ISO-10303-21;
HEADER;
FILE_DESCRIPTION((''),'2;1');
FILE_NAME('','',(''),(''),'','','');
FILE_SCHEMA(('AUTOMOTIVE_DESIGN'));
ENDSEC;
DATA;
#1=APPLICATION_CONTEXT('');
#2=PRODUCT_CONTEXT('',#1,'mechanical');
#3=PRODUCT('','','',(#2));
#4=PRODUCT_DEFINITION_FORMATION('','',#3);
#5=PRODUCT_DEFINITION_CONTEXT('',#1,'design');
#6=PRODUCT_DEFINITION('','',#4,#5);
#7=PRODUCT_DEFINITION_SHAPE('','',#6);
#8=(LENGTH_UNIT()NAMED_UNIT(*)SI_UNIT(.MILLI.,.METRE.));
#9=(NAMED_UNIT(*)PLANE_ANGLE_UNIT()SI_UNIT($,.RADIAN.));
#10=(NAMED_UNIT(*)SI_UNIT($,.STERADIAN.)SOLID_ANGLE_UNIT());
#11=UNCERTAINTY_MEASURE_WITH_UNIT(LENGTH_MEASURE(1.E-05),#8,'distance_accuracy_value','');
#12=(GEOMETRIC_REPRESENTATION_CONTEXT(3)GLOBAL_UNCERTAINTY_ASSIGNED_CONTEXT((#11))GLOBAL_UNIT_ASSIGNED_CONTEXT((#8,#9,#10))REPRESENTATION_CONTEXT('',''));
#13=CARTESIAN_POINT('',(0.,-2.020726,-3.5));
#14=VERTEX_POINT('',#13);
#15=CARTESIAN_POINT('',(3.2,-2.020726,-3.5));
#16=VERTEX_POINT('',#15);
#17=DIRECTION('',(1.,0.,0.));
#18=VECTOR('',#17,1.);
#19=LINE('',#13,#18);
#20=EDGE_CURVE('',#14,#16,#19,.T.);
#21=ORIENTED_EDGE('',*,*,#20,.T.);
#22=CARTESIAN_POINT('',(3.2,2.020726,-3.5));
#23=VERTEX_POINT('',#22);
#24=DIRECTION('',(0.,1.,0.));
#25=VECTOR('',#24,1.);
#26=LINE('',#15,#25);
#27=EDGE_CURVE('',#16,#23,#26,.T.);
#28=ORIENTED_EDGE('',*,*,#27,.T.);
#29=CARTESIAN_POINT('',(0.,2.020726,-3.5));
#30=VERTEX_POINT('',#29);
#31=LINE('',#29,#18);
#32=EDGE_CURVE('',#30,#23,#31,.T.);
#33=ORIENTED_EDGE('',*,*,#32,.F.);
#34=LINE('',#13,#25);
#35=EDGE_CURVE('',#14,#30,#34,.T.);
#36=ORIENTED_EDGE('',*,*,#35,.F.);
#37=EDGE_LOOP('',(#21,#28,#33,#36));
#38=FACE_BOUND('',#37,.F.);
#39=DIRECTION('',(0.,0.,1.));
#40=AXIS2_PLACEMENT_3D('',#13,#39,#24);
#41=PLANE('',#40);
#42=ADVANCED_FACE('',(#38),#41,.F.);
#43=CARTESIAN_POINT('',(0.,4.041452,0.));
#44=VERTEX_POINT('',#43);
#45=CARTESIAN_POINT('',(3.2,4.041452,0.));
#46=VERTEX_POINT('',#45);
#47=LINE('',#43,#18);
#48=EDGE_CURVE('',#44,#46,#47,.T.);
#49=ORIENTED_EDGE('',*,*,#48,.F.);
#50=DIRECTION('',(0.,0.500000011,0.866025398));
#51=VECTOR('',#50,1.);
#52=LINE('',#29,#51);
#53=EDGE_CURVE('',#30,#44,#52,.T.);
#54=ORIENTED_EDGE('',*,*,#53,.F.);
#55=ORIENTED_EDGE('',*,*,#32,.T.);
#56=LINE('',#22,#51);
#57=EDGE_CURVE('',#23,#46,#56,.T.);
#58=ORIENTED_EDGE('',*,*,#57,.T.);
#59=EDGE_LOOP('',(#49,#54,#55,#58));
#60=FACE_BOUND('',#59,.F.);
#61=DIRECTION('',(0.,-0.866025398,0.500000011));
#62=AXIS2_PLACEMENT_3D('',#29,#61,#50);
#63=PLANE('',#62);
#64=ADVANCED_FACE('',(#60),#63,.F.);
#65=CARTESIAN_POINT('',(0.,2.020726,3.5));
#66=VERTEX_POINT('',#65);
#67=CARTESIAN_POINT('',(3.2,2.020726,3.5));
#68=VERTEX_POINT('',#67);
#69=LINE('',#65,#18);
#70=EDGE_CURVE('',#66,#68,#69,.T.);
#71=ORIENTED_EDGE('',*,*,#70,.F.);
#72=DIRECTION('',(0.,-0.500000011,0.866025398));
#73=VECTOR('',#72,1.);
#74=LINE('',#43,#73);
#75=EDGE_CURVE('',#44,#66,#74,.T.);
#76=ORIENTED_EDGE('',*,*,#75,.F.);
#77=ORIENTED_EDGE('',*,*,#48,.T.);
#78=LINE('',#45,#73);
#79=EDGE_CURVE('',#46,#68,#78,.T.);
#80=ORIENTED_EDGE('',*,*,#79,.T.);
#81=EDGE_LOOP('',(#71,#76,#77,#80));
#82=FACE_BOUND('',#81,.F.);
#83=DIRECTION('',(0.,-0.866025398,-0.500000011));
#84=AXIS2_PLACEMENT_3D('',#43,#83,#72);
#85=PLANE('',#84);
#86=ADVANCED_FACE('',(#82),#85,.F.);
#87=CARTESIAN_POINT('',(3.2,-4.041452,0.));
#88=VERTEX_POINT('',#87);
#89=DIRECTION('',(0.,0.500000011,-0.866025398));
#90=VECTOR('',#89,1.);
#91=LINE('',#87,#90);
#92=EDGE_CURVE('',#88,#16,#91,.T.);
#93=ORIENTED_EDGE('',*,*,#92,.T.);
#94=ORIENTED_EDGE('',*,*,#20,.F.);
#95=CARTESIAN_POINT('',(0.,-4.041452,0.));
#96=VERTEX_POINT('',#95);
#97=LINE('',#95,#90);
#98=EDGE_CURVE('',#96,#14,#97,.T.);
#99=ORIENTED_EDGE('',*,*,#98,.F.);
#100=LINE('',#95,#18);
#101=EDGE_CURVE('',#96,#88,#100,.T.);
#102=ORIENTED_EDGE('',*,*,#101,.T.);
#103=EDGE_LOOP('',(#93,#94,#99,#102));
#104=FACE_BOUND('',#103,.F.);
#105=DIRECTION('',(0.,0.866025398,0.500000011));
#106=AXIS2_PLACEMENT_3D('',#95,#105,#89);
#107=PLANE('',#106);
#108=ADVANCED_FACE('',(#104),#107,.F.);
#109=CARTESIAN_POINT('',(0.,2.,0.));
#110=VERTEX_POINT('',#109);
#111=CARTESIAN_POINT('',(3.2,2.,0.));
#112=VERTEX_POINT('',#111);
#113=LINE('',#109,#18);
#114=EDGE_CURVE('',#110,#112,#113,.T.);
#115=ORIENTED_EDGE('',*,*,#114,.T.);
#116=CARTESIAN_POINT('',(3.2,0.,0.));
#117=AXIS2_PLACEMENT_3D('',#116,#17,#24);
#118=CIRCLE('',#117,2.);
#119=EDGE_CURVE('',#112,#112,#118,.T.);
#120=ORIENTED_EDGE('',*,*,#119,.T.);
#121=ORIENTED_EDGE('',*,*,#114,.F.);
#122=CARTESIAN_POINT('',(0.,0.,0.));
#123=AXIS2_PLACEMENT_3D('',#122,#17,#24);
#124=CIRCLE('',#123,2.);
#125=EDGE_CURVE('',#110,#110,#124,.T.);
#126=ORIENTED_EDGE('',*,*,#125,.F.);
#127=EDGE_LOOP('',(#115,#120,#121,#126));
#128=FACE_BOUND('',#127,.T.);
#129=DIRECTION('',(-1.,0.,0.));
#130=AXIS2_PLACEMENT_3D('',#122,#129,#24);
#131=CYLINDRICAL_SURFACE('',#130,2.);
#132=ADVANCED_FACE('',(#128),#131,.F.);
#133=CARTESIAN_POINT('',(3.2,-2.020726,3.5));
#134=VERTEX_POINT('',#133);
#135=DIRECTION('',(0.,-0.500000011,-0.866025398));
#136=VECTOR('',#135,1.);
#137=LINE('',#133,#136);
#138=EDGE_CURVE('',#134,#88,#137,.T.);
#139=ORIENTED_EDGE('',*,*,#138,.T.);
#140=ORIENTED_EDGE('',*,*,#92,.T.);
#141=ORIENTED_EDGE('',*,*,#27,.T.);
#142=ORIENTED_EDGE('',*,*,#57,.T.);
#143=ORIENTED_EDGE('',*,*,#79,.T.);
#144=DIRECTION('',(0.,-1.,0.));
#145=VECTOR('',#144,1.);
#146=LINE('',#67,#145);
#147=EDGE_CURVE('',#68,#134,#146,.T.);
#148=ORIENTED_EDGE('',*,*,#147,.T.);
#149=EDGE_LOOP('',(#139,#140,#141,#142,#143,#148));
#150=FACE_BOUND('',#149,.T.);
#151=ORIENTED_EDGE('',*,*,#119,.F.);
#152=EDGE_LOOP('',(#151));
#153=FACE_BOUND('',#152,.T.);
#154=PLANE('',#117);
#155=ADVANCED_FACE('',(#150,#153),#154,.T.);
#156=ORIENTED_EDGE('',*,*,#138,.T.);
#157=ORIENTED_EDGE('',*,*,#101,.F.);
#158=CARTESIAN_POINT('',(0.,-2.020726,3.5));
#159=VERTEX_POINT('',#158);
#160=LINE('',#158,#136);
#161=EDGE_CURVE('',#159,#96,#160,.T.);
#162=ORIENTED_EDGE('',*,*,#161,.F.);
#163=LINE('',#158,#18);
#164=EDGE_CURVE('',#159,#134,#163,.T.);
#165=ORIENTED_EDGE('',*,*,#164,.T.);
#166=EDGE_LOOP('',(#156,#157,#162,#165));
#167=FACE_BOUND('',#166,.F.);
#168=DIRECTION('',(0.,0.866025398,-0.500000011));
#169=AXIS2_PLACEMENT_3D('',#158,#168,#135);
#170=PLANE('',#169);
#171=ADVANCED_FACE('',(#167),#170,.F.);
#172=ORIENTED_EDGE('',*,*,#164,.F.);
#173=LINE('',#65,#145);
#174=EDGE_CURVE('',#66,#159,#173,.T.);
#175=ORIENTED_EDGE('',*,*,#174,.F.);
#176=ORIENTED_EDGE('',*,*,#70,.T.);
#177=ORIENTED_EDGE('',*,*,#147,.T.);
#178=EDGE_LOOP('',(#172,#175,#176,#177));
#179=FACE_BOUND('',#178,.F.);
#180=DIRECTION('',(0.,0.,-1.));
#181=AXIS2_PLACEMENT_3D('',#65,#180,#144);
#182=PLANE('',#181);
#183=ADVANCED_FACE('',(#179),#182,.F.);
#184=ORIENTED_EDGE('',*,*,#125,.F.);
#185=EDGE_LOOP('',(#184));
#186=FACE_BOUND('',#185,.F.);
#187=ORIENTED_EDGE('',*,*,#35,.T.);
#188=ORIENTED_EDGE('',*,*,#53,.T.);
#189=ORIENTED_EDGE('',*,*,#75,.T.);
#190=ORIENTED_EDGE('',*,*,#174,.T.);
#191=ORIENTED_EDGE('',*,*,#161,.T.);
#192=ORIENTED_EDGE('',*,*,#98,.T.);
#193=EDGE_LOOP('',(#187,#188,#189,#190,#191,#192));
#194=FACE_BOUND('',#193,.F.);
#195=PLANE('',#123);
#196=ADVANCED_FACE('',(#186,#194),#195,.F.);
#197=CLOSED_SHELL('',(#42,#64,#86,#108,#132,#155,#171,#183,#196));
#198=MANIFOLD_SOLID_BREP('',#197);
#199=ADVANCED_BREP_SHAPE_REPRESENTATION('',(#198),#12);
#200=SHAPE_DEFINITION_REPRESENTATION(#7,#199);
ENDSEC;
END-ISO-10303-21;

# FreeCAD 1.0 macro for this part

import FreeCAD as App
import Part
import Sketcher
Q = App.Units.Quantity

doc = App.newDocument("Part")
body = doc.addObject("PartDesign::Body", "Body")

# Sketch on YZ plane
sketch1 = doc.addObject("Sketcher::SketchObject", "Sketch")
body.addObject(sketch1)
sketch1.AttachmentSupport = (doc.YZ_Plane, [""])
sketch1.MapMode = "FlatFace"
sketch1.addGeometry([
    Part.LineSegment(App.Vector(2.020726, 3.5, 0), App.Vector(-2.020726, 3.5, 0)),  # 0
    Part.LineSegment(App.Vector(-2.020726, 3.5, 0), App.Vector(-4.041452, 0, 0)),  # 1
    Part.LineSegment(App.Vector(-4.041452, 0, 0), App.Vector(-2.020726, -3.5, 0)),  # 2
    Part.LineSegment(App.Vector(-2.020726, -3.5, 0), App.Vector(2.020726, -3.5, 0)),  # 3
    Part.LineSegment(App.Vector(2.020726, -3.5, 0), App.Vector(4.041452, 0, 0)),  # 4
    Part.LineSegment(App.Vector(4.041452, 0, 0), App.Vector(2.020726, 3.5, 0)),  # 5
    Part.Circle(App.Vector(0, 0, 0), App.Vector(0, 0, 1), 2),  # 6
], False)
sketch1.addConstraint([
    Sketcher.Constraint("Coincident", 0, 2, 1, 1),
    Sketcher.Constraint("Coincident", 1, 2, 2, 1),
    Sketcher.Constraint("Coincident", 2, 2, 3, 1),
    Sketcher.Constraint("Coincident", 3, 2, 4, 1),
    Sketcher.Constraint("Coincident", 4, 2, 5, 1),
    Sketcher.Constraint("Coincident", 5, 2, 0, 1),
    Sketcher.Constraint("Horizontal", 0),
    Sketcher.Constraint("Horizontal", 3),
    Sketcher.Constraint("Coincident", 6, 3, -1, 1),
    Sketcher.Constraint("Symmetric", 0, 2, 3, 2, -1, 1),
    Sketcher.Constraint("Symmetric", 1, 2, 4, 2, -1, 1),
    Sketcher.Constraint("PointOnObject", 1, 2, -1),
    Sketcher.Constraint("Parallel", 2, 5),
    Sketcher.Constraint("Vertical", 0, 2, 2, 2),
    Sketcher.Constraint("Diameter", 6, 4.0),
    Sketcher.Constraint("Angle", 1, Q("-120.000001 deg")),
    Sketcher.Constraint("DistanceY", 2, 2, 0, 2, 7.0),
    Sketcher.Constraint("DistanceX", 0, 2, 0, 1, 4.041452),
])
pad1 = doc.addObject("PartDesign::Pad", "Pad")
body.addObject(pad1)
pad1.Profile = sketch1
pad1.Length = 3.2

doc.recompute()
